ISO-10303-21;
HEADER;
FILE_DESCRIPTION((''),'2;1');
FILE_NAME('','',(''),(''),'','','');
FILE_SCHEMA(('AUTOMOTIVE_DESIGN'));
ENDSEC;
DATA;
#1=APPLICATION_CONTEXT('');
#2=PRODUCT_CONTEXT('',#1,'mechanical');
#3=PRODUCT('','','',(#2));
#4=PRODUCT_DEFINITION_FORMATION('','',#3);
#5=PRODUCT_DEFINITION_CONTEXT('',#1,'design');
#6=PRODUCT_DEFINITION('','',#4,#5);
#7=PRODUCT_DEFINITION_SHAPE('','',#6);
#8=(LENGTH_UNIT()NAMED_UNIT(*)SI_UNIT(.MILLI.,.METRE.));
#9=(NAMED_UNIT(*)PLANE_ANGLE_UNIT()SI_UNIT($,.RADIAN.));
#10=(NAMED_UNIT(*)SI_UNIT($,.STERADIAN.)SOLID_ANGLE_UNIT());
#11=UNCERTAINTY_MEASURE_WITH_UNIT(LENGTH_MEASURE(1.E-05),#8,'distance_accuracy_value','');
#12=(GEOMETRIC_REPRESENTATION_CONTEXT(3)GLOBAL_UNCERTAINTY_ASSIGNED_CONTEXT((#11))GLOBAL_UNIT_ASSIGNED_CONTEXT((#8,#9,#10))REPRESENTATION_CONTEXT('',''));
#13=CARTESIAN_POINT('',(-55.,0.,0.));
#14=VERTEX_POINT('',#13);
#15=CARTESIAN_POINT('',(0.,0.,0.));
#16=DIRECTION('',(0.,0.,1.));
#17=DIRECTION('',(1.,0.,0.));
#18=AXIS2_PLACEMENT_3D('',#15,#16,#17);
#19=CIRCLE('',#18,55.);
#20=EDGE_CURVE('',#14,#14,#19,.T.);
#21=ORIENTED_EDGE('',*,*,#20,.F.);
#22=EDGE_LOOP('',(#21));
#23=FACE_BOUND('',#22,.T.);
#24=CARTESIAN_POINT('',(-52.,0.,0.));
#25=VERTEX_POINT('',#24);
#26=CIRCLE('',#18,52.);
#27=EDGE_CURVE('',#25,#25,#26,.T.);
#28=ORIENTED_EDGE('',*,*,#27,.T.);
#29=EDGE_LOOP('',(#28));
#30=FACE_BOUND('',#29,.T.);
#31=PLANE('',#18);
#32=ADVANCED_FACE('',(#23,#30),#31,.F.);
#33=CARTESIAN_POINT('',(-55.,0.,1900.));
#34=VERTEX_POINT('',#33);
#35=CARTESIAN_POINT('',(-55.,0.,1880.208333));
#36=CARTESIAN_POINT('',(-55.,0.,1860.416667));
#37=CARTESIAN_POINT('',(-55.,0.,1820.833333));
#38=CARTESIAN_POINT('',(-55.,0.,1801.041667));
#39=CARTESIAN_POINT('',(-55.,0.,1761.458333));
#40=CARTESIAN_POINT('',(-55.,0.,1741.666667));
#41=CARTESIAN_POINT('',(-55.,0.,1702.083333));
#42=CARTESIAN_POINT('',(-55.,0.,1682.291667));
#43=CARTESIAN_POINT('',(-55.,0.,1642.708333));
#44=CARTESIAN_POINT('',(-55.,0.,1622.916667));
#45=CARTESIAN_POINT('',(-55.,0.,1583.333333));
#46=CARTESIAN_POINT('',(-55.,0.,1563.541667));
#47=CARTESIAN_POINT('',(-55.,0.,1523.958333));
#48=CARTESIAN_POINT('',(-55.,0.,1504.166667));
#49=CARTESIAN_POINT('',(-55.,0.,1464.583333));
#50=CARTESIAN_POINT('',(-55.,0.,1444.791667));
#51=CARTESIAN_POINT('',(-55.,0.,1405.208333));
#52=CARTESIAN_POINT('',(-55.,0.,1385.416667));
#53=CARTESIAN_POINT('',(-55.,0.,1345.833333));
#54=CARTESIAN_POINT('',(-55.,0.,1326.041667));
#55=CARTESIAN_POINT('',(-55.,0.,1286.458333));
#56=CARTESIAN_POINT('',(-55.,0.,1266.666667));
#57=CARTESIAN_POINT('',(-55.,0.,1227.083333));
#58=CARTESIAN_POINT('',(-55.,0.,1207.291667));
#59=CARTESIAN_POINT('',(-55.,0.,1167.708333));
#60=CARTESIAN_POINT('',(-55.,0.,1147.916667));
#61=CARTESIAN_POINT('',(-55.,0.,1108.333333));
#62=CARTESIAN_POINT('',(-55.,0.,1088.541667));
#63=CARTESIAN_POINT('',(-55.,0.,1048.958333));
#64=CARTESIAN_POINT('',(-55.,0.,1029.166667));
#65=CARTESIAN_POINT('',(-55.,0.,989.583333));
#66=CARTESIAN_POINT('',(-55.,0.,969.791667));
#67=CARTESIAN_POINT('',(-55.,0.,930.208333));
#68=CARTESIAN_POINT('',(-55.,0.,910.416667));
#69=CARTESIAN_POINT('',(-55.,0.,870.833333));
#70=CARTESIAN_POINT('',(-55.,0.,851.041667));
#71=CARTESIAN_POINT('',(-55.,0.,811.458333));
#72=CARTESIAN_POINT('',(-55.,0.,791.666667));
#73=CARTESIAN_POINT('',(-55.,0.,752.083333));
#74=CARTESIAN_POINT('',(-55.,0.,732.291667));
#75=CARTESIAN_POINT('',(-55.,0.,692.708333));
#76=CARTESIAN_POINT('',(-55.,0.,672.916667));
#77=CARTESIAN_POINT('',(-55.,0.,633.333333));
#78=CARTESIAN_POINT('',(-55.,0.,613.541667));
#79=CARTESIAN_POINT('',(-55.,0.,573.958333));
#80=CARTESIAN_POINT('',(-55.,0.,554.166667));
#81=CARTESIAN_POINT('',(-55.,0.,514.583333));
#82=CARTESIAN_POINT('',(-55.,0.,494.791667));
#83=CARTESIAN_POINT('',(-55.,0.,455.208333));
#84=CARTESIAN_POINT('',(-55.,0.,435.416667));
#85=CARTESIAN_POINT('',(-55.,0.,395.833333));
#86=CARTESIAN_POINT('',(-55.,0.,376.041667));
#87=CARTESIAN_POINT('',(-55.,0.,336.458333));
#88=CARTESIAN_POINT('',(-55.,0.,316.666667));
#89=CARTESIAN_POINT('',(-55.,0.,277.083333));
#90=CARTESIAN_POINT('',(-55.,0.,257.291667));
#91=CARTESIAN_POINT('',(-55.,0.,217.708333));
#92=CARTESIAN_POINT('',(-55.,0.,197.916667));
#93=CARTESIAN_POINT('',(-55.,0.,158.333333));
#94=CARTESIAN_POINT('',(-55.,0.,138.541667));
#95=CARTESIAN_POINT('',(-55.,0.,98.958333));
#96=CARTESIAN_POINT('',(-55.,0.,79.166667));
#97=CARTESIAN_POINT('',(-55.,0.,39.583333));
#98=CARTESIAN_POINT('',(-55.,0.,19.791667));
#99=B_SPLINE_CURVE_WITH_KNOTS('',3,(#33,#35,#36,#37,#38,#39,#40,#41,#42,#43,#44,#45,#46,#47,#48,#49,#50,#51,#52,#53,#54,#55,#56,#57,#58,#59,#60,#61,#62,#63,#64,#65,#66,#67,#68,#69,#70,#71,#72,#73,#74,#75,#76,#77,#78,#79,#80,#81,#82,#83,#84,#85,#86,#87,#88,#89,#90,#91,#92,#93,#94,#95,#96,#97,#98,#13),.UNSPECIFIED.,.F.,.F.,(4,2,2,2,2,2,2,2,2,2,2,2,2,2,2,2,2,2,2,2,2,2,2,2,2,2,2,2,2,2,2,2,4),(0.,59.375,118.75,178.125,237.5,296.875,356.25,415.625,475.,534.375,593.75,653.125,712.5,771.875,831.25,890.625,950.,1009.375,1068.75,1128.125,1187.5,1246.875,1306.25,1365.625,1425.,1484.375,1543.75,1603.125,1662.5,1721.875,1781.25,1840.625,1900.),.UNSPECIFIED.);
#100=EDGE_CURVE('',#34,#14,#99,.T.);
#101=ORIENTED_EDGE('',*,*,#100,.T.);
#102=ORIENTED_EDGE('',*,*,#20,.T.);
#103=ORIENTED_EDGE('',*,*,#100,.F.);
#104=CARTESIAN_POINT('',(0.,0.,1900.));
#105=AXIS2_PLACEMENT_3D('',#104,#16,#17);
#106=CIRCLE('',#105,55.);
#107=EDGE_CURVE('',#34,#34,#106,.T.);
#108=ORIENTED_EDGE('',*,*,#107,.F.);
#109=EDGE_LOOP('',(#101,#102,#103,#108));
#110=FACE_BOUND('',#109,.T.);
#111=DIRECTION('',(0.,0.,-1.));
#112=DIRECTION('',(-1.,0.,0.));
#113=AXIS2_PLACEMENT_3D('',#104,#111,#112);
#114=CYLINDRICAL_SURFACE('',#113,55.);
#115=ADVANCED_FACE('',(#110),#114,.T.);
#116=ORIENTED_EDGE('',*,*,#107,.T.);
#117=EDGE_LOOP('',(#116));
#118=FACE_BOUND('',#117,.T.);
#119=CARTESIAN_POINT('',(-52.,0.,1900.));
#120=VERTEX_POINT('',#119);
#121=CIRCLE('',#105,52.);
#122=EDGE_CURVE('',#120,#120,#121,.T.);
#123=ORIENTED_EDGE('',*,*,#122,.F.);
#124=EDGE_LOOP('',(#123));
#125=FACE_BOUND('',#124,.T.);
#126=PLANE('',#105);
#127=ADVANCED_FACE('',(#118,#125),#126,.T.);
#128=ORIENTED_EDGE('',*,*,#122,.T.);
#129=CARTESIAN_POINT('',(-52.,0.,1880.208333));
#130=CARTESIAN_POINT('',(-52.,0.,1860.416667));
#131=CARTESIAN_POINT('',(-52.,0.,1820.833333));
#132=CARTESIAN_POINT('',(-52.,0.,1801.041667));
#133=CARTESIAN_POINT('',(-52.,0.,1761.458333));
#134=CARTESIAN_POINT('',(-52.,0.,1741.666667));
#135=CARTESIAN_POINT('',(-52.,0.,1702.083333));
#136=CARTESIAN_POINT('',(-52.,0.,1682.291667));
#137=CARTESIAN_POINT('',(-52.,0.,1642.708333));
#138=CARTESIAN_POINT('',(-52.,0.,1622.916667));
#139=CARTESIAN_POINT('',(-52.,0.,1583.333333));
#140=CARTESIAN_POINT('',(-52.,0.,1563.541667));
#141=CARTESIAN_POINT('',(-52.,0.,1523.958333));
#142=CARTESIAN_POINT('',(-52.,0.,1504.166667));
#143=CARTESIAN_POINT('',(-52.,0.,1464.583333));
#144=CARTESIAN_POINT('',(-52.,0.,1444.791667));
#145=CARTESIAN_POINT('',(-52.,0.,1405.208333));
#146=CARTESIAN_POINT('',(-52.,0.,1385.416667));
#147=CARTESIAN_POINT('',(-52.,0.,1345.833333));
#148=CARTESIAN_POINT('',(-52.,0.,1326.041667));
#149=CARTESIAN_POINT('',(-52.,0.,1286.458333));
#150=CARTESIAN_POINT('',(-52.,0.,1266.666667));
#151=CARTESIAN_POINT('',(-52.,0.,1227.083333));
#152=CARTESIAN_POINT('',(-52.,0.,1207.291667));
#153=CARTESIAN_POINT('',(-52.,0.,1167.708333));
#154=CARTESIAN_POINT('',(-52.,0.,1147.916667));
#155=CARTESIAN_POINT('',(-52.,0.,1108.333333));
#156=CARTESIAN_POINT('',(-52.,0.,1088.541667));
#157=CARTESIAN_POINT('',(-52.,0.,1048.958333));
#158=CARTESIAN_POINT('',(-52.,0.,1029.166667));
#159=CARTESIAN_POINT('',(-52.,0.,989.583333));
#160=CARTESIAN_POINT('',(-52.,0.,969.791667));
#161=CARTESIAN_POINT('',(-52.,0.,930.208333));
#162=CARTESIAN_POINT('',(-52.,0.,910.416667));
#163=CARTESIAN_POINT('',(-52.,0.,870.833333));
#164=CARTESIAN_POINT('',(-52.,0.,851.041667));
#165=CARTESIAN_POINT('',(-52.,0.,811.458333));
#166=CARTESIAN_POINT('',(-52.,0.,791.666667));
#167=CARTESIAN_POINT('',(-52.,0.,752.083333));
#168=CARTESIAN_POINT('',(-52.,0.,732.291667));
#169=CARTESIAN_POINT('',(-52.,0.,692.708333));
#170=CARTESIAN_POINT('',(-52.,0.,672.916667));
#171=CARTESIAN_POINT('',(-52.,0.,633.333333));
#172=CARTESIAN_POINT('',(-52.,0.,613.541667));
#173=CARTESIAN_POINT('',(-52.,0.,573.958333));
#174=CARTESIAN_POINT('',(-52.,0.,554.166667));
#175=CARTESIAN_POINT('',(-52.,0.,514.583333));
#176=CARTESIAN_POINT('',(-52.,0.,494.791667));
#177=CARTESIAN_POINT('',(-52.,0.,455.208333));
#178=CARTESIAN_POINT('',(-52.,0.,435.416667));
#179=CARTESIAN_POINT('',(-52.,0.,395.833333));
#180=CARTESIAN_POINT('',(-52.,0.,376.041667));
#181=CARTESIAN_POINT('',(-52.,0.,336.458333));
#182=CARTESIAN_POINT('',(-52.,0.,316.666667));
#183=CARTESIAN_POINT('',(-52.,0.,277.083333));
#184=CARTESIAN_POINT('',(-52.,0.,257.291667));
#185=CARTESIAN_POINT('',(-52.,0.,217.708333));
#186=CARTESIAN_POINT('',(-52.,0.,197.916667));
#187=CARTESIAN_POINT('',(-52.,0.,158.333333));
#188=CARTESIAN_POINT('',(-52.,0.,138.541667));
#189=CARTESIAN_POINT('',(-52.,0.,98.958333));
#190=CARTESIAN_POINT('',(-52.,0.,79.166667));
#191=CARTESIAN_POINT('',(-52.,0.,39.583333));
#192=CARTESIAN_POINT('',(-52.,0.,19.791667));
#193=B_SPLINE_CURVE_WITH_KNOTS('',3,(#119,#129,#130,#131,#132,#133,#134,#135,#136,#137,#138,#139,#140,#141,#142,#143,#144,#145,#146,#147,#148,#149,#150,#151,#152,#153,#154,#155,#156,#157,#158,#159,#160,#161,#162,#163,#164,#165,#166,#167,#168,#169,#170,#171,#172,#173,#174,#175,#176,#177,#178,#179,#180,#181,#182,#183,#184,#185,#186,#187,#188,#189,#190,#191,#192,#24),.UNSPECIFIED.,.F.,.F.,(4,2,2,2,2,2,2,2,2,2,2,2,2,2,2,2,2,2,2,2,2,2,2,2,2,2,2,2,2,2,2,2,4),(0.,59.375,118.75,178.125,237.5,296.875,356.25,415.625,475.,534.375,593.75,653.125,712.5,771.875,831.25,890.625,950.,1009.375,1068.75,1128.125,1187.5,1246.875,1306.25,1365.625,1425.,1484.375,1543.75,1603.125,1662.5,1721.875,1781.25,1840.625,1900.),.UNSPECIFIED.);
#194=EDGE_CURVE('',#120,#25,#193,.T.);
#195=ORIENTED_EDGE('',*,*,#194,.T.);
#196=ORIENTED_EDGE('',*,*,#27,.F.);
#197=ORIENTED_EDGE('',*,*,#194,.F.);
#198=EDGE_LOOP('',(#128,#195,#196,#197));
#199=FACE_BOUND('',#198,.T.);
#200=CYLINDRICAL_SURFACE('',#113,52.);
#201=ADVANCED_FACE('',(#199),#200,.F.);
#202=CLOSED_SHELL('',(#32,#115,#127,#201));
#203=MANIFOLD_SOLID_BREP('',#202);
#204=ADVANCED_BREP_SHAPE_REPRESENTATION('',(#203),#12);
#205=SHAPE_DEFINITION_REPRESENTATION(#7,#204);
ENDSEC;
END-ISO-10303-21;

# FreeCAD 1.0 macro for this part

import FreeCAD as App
import Part
import Sketcher
from FreeCAD import Vector


def faces_at(feature, points):
    """Names of the faces that lie closest to the given points."""
    faces = feature.Shape.Faces
    near = lambda p: min(range(len(faces)), key=lambda i: faces[i].distToShape(Part.Vertex(*p))[0])
    return sorted({f"Face{near(p) + 1}" for p in points})

doc = App.newDocument("Part")
body = doc.addObject("PartDesign::Body", "Body")

# Sketch on XY plane
sketch1 = body.newObject("Sketcher::SketchObject", "Sketch")
sketch1.AttachmentSupport = (doc.getObject("XY_Plane"), [""])
sketch1.MapMode = "FlatFace"
sketch1.addGeometry(Part.Circle(Vector(0, 0, 0), Vector(0, 0, 1), 55), False)
sketch1.addConstraint(Sketcher.Constraint("Coincident", 0, 3, -1, 1))
sketch1.addConstraint(Sketcher.Constraint("Diameter", 0, 110.0))
pad1 = body.newObject("PartDesign::Pad", "Pad")
pad1.Profile = sketch1
pad1.Length = 1900
doc.recompute()

thickness = body.newObject("PartDesign::Thickness", "Thickness")
thickness.Base = (pad1, faces_at(pad1, [(0, 0, 1900), (0, 0, 0)]))
thickness.Value = 3
thickness.Reversed = True
thickness.Join = "Intersection"

doc.recompute()
